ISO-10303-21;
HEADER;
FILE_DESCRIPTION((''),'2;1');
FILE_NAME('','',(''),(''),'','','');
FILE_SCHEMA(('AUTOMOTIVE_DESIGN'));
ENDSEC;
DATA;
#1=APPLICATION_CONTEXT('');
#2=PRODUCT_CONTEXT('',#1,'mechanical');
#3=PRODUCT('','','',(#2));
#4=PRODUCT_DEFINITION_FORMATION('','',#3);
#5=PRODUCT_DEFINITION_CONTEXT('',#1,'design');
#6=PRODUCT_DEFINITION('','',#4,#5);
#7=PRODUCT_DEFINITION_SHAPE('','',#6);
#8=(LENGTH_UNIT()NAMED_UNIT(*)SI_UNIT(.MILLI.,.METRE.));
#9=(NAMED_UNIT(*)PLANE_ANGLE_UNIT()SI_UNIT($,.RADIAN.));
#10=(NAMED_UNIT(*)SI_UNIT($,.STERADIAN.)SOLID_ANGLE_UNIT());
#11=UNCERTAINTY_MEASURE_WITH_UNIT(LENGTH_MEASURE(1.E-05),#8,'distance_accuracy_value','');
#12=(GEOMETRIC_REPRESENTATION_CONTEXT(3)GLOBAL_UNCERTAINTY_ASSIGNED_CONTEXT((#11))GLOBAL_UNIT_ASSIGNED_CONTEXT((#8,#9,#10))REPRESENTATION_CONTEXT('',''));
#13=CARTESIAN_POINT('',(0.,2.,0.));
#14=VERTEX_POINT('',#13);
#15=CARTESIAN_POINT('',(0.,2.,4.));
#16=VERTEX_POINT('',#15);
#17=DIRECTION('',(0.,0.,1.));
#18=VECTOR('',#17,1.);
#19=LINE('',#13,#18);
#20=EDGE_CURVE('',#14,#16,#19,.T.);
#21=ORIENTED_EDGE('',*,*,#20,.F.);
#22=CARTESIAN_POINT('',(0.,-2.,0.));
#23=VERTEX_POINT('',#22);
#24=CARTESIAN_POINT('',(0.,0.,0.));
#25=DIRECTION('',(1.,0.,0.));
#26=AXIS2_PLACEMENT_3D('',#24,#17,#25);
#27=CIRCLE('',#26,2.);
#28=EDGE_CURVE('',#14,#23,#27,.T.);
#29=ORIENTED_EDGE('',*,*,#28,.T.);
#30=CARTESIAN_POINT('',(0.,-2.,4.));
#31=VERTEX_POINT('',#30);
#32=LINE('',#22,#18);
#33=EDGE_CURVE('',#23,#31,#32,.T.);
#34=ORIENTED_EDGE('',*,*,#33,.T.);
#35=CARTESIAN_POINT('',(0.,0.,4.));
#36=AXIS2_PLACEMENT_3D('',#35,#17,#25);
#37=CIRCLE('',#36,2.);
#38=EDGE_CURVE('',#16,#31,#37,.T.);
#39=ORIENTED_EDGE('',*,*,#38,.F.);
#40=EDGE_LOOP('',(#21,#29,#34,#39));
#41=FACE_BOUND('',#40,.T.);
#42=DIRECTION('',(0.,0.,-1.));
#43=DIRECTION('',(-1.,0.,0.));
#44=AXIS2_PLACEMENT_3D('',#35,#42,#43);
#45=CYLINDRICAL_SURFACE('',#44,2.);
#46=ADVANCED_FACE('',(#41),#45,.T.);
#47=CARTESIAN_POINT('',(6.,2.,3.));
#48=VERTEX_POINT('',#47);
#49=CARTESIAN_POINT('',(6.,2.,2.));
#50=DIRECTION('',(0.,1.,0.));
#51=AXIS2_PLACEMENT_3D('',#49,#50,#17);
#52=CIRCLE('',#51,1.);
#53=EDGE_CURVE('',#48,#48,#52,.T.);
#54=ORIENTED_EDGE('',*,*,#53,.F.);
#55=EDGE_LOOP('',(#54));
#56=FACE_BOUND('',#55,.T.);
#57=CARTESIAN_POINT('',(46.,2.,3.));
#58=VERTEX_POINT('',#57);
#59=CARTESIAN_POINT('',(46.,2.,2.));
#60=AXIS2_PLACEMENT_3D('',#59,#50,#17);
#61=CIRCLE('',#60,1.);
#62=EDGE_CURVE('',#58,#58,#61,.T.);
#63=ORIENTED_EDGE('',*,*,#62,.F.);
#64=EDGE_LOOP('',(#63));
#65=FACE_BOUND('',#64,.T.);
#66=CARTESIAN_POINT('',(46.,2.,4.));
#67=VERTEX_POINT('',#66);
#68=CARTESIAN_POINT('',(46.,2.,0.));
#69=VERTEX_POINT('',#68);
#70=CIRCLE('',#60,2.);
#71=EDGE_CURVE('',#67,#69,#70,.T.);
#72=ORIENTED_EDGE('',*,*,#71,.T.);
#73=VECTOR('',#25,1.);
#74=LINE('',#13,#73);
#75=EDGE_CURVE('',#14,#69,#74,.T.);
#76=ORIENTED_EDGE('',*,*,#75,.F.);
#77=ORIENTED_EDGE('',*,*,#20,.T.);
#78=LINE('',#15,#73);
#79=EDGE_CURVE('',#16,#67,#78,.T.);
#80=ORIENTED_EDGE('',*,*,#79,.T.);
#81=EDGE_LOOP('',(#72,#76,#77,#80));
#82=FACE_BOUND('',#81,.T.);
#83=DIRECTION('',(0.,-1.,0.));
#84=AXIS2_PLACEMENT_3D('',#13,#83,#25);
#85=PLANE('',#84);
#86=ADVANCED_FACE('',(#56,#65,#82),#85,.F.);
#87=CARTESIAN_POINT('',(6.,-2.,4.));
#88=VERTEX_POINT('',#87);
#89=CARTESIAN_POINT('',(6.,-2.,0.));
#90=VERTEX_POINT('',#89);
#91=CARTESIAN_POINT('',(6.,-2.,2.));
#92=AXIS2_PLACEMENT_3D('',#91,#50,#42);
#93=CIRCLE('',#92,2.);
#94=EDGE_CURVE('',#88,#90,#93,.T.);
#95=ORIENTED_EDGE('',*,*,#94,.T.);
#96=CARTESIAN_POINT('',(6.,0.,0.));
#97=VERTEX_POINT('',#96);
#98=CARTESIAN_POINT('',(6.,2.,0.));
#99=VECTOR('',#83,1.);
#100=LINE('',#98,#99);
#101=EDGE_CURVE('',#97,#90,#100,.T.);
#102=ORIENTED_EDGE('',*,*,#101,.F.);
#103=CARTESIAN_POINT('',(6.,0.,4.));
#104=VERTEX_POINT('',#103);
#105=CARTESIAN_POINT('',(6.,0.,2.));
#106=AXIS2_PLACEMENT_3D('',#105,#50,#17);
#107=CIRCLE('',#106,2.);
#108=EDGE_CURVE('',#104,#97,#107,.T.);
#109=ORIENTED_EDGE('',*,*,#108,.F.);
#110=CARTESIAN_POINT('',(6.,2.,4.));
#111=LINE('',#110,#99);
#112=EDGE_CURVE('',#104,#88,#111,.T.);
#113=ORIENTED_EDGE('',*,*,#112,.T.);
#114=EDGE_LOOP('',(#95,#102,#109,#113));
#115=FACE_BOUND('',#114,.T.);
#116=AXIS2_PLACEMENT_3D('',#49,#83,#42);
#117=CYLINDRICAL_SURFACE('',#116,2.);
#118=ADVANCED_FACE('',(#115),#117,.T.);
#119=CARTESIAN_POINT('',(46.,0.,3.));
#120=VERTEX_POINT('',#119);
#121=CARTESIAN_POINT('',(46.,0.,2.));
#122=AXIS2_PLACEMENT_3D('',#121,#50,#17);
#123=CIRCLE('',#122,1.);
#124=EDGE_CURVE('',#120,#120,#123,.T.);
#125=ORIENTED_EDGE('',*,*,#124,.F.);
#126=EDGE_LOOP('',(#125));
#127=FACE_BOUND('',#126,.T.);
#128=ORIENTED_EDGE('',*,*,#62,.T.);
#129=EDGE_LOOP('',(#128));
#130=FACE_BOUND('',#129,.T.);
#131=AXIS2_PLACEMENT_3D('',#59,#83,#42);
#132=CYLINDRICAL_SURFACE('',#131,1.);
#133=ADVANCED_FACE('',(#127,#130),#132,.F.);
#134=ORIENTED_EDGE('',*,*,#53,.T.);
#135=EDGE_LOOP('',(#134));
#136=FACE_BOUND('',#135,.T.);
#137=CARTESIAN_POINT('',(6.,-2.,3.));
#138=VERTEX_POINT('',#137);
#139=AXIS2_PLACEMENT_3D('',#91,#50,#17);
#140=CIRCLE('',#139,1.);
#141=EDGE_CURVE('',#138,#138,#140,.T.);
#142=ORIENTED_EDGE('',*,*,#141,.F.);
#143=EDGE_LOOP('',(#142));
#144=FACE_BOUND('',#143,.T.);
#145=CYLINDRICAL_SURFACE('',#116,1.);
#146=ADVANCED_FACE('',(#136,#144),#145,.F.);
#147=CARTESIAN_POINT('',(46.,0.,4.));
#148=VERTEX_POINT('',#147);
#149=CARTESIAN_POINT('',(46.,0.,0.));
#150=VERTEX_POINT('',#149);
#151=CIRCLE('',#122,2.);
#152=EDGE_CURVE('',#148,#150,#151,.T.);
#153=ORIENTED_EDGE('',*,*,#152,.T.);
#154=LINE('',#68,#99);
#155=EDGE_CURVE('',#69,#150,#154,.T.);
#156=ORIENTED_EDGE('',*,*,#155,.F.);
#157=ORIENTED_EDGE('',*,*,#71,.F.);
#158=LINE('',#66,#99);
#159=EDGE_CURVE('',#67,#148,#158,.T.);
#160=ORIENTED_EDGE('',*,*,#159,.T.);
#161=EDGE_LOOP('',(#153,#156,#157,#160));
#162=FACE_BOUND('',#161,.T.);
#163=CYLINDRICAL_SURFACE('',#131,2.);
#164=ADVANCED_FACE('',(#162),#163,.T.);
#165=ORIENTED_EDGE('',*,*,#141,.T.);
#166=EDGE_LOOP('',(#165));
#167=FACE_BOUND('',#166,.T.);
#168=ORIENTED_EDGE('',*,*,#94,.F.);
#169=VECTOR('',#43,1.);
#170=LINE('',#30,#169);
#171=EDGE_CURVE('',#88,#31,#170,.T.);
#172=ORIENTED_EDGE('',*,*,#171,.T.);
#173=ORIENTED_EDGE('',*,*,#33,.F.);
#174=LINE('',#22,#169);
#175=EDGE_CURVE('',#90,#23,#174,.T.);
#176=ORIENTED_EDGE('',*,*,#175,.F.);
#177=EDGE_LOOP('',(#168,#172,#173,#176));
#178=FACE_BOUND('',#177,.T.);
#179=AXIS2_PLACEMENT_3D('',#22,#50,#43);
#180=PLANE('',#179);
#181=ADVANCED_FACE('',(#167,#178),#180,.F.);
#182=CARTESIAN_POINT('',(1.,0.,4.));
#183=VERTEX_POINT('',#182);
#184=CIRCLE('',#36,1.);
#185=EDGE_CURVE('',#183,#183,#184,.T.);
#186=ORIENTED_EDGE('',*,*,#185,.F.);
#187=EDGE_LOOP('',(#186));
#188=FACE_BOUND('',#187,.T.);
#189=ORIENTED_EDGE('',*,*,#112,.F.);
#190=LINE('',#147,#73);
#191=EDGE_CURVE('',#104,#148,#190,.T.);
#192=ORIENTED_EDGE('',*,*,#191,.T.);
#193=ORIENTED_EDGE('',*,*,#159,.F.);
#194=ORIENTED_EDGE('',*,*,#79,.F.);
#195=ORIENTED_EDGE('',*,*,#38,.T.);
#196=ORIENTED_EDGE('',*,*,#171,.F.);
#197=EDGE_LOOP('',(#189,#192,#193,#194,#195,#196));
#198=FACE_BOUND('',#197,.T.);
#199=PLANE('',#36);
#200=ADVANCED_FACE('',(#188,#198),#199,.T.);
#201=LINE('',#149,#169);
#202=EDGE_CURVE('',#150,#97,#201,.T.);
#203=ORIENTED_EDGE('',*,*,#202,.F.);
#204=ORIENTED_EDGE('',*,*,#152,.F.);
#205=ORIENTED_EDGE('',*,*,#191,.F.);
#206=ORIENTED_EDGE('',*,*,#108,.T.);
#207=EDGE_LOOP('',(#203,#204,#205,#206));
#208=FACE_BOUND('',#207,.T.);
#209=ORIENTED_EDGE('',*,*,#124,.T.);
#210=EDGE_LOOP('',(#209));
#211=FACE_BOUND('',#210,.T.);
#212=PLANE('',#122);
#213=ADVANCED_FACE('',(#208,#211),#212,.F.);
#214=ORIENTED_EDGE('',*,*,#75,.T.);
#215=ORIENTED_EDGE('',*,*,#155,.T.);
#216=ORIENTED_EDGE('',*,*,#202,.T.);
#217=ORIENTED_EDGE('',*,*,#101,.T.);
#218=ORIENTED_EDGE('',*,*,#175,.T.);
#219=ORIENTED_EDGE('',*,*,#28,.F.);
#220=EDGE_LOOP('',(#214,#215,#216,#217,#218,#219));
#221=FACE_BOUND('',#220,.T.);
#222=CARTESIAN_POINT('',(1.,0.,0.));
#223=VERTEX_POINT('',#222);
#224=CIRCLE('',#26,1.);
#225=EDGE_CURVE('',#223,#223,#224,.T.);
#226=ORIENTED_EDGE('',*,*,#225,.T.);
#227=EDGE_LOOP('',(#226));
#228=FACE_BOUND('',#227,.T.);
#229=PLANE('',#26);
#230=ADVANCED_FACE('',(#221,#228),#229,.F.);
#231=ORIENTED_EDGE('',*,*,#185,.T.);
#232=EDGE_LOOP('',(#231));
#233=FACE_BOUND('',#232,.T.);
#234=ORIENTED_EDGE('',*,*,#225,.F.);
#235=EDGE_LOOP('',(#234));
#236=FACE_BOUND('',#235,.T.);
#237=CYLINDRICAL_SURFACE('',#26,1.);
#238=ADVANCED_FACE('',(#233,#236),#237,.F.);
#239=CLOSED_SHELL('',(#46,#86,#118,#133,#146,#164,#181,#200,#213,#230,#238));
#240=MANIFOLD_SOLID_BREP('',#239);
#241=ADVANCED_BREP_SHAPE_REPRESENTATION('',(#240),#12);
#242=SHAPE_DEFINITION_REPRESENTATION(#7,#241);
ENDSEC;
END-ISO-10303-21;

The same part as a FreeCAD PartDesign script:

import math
import FreeCAD as App
import Part
import Sketcher
Q = App.Units.Quantity

doc = App.newDocument("Part")
params = doc.addObject("Spreadsheet::Sheet", "Params")
for row, (alias, value) in enumerate([
    ("sketch1_diameter", "4 mm"),
    ("pad1_length", "4 mm"),
    ("sketch2_radius", "2 mm"),
    ("sketch2_width", "3 mm"),
    ("pad2_length", "4 mm"),
    ("sketch3_diameter", "2 mm"),
    ("sketch4_diameter", "2 mm"),
    ("sketch4_radius", "2 mm"),
    ("sketch4_width", "3 mm"),
    ("pad3_length", "4 mm"),
    ("sketch5_diameter", "2 mm"),
    ("sketch5_radius", "2 mm"),
    ("sketch5_width", "40 mm"),
    ("pad4_length", "2 mm"),
], start=1):
    params.set(f"A{row}", alias)
    params.set(f"B{row}", "=" + value)
    params.setAlias(f"B{row}", alias)

body = doc.addObject("PartDesign::Body", "Body")

sketch1 = body.newObject("Sketcher::SketchObject", "Sketch")
sketch1.AttachmentSupport = (doc.getObject("XY_Plane"), [""])
sketch1.MapMode = "FlatFace"
sketch1.addGeometry(Part.Circle(App.Vector(0, 0, 0), App.Vector(0, 0, 1), 2), False)
sketch1.addConstraint([
    Sketcher.Constraint("Coincident", 0, 3, -1, 1),
    Sketcher.Constraint("Diameter", 0, Q("4 mm")),
])
sketch1.setExpression("Constraints[1]", "Params.sketch1_diameter")
pad1 = body.newObject("PartDesign::Pad", "Pad")
pad1.Profile = sketch1
pad1.setExpression("Length", "Params.pad1_length")

sketch2 = body.newObject("Sketcher::SketchObject", "Sketch001")
sketch2.AttachmentSupport = (doc.getObject("XY_Plane"), [""])
sketch2.MapMode = "FlatFace"
sketch2.addGeometry([
    Part.LineSegment(App.Vector(3, 2, 0), App.Vector(0, 2, 0)),
    Part.ArcOfCircle(Part.Circle(App.Vector(0, 0, 0), App.Vector(0, 0, 1), 2), math.radians(0), math.radians(90)),
    Part.ArcOfCircle(Part.Circle(App.Vector(0, 0, 0), App.Vector(0, 0, 1), 2), math.radians(-90), math.radians(0)),
    Part.LineSegment(App.Vector(0, -2, 0), App.Vector(3, -2, 0)),
    Part.LineSegment(App.Vector(3, -2, 0), App.Vector(3, 2, 0)),
], False)
sketch2.addConstraint([
    Sketcher.Constraint("Tangent", 0, 2, 1, 2),
    Sketcher.Constraint("Tangent", 1, 1, 2, 2),
    Sketcher.Constraint("Tangent", 2, 1, 3, 1),
    Sketcher.Constraint("Coincident", 3, 2, 4, 1),
    Sketcher.Constraint("Coincident", 4, 2, 0, 1),
    Sketcher.Constraint("Horizontal", 0),
    Sketcher.Constraint("Horizontal", 3),
    Sketcher.Constraint("Vertical", 4),
    Sketcher.Constraint("Coincident", 1, 3, -1, 1),
    Sketcher.Constraint("Equal", 1, 2),
    Sketcher.Constraint("PointOnObject", 1, 1, -1),
    Sketcher.Constraint("Radius", 1, Q("2 mm")),
    Sketcher.Constraint("DistanceX", 0, 2, 0, 1, Q("3 mm")),
])
sketch2.setExpression("Constraints[11]", "Params.sketch2_radius")
sketch2.setExpression("Constraints[12]", "Params.sketch2_width")
pad2 = body.newObject("PartDesign::Pad", "Pad001")
pad2.Profile = sketch2
pad2.setExpression("Length", "Params.pad2_length")

sketch3 = body.newObject("Sketcher::SketchObject", "Sketch002")
sketch3.AttachmentSupport = (doc.getObject("XY_Plane"), [""])
sketch3.MapMode = "FlatFace"
sketch3.AttachmentOffset = App.Placement(App.Vector(0, 0, 4), App.Rotation())
sketch3.addGeometry(Part.Circle(App.Vector(0, 0, 0), App.Vector(0, 0, 1), 1), False)
sketch3.addConstraint([
    Sketcher.Constraint("Coincident", 0, 3, -1, 1),
    Sketcher.Constraint("Diameter", 0, Q("2 mm")),
])
sketch3.setExpression("Constraints[1]", "Params.sketch3_diameter")
pocket1 = body.newObject("PartDesign::Pocket", "Pocket")
pocket1.Profile = sketch3
pocket1.Type = "ThroughAll"

sketch4 = body.newObject("Sketcher::SketchObject", "Sketch003")
sketch4.AttachmentSupport = (doc.getObject("XZ_Plane"), [""])
sketch4.MapMode = "FlatFace"
sketch4.addGeometry([
    Part.LineSegment(App.Vector(3, 0, 0), App.Vector(3, 4, 0)),
    Part.LineSegment(App.Vector(3, 4, 0), App.Vector(6, 4, 0)),
    Part.ArcOfCircle(Part.Circle(App.Vector(6, 2, 0), App.Vector(0, 0, 1), 2), math.radians(-90), math.radians(90)),
    Part.LineSegment(App.Vector(6, 0, 0), App.Vector(3, 0, 0)),
    Part.Circle(App.Vector(6, 2, 0), App.Vector(0, 0, 1), 1),
], False)
sketch4.addConstraint([
    Sketcher.Constraint("Coincident", 0, 2, 1, 1),
    Sketcher.Constraint("Tangent", 1, 2, 2, 2),
    Sketcher.Constraint("Tangent", 2, 1, 3, 1),
    Sketcher.Constraint("Coincident", 3, 2, 0, 1),
    Sketcher.Constraint("Vertical", 0),
    Sketcher.Constraint("Horizontal", 1),
    Sketcher.Constraint("Horizontal", 3),
    Sketcher.Constraint("Coincident", 4, 3, 2, 3),
    Sketcher.Constraint("PointOnObject", 2, 1, -1),
    Sketcher.Constraint("Diameter", 4, Q("2 mm")),
    Sketcher.Constraint("Radius", 2, Q("2 mm")),
    Sketcher.Constraint("DistanceX", 1, 1, 1, 2, Q("3 mm")),
    Sketcher.Constraint("DistanceX", -1, 1, 2, 3, Q("6 mm")),
])
sketch4.setExpression("Constraints[9]", "Params.sketch4_diameter")
sketch4.setExpression("Constraints[10]", "Params.sketch4_radius")
sketch4.setExpression("Constraints[11]", "Params.sketch4_width")
pad3 = body.newObject("PartDesign::Pad", "Pad002")
pad3.Profile = sketch4
pad3.setExpression("Length", "Params.pad3_length")
pad3.Midplane = True

sketch5 = body.newObject("Sketcher::SketchObject", "Sketch004")
sketch5.AttachmentSupport = (doc.getObject("XZ_Plane"), [""])
sketch5.MapMode = "FlatFace"
sketch5.addGeometry([
    Part.LineSegment(App.Vector(6, 4, 0), App.Vector(46, 4, 0)),
    Part.ArcOfCircle(Part.Circle(App.Vector(46, 2, 0), App.Vector(0, 0, 1), 2), math.radians(-90), math.radians(90)),
    Part.LineSegment(App.Vector(46, 0, 0), App.Vector(6, 0, 0)),
    Part.ArcOfCircle(Part.Circle(App.Vector(6, 2, 0), App.Vector(0, 0, 1), 2), math.radians(90), math.radians(270)),
    Part.Circle(App.Vector(46, 2, 0), App.Vector(0, 0, 1), 1),
    Part.Circle(App.Vector(6, 2, 0), App.Vector(0, 0, 1), 1),
], False)
sketch5.addConstraint([
    Sketcher.Constraint("Tangent", 0, 2, 1, 2),
    Sketcher.Constraint("Tangent", 1, 1, 2, 1),
    Sketcher.Constraint("Tangent", 2, 2, 3, 2),
    Sketcher.Constraint("Tangent", 3, 1, 0, 1),
    Sketcher.Constraint("Horizontal", 0),
    Sketcher.Constraint("Horizontal", 2),
    Sketcher.Constraint("Coincident", 4, 3, 1, 3),
    Sketcher.Constraint("Coincident", 5, 3, 3, 3),
    Sketcher.Constraint("Equal", 4, 5),
    Sketcher.Constraint("PointOnObject", 1, 1, -1),
    Sketcher.Constraint("Diameter", 4, Q("2 mm")),
    Sketcher.Constraint("Radius", 1, Q("2 mm")),
    Sketcher.Constraint("DistanceX", 0, 1, 0, 2, Q("40 mm")),
    Sketcher.Constraint("DistanceX", -1, 1, 1, 3, Q("46 mm")),
])
sketch5.setExpression("Constraints[10]", "Params.sketch5_diameter")
sketch5.setExpression("Constraints[11]", "Params.sketch5_radius")
sketch5.setExpression("Constraints[12]", "Params.sketch5_width")
pad4 = body.newObject("PartDesign::Pad", "Pad003")
pad4.Profile = sketch5
pad4.setExpression("Length", "Params.pad4_length")
pad4.Reversed = True

doc.recompute()
